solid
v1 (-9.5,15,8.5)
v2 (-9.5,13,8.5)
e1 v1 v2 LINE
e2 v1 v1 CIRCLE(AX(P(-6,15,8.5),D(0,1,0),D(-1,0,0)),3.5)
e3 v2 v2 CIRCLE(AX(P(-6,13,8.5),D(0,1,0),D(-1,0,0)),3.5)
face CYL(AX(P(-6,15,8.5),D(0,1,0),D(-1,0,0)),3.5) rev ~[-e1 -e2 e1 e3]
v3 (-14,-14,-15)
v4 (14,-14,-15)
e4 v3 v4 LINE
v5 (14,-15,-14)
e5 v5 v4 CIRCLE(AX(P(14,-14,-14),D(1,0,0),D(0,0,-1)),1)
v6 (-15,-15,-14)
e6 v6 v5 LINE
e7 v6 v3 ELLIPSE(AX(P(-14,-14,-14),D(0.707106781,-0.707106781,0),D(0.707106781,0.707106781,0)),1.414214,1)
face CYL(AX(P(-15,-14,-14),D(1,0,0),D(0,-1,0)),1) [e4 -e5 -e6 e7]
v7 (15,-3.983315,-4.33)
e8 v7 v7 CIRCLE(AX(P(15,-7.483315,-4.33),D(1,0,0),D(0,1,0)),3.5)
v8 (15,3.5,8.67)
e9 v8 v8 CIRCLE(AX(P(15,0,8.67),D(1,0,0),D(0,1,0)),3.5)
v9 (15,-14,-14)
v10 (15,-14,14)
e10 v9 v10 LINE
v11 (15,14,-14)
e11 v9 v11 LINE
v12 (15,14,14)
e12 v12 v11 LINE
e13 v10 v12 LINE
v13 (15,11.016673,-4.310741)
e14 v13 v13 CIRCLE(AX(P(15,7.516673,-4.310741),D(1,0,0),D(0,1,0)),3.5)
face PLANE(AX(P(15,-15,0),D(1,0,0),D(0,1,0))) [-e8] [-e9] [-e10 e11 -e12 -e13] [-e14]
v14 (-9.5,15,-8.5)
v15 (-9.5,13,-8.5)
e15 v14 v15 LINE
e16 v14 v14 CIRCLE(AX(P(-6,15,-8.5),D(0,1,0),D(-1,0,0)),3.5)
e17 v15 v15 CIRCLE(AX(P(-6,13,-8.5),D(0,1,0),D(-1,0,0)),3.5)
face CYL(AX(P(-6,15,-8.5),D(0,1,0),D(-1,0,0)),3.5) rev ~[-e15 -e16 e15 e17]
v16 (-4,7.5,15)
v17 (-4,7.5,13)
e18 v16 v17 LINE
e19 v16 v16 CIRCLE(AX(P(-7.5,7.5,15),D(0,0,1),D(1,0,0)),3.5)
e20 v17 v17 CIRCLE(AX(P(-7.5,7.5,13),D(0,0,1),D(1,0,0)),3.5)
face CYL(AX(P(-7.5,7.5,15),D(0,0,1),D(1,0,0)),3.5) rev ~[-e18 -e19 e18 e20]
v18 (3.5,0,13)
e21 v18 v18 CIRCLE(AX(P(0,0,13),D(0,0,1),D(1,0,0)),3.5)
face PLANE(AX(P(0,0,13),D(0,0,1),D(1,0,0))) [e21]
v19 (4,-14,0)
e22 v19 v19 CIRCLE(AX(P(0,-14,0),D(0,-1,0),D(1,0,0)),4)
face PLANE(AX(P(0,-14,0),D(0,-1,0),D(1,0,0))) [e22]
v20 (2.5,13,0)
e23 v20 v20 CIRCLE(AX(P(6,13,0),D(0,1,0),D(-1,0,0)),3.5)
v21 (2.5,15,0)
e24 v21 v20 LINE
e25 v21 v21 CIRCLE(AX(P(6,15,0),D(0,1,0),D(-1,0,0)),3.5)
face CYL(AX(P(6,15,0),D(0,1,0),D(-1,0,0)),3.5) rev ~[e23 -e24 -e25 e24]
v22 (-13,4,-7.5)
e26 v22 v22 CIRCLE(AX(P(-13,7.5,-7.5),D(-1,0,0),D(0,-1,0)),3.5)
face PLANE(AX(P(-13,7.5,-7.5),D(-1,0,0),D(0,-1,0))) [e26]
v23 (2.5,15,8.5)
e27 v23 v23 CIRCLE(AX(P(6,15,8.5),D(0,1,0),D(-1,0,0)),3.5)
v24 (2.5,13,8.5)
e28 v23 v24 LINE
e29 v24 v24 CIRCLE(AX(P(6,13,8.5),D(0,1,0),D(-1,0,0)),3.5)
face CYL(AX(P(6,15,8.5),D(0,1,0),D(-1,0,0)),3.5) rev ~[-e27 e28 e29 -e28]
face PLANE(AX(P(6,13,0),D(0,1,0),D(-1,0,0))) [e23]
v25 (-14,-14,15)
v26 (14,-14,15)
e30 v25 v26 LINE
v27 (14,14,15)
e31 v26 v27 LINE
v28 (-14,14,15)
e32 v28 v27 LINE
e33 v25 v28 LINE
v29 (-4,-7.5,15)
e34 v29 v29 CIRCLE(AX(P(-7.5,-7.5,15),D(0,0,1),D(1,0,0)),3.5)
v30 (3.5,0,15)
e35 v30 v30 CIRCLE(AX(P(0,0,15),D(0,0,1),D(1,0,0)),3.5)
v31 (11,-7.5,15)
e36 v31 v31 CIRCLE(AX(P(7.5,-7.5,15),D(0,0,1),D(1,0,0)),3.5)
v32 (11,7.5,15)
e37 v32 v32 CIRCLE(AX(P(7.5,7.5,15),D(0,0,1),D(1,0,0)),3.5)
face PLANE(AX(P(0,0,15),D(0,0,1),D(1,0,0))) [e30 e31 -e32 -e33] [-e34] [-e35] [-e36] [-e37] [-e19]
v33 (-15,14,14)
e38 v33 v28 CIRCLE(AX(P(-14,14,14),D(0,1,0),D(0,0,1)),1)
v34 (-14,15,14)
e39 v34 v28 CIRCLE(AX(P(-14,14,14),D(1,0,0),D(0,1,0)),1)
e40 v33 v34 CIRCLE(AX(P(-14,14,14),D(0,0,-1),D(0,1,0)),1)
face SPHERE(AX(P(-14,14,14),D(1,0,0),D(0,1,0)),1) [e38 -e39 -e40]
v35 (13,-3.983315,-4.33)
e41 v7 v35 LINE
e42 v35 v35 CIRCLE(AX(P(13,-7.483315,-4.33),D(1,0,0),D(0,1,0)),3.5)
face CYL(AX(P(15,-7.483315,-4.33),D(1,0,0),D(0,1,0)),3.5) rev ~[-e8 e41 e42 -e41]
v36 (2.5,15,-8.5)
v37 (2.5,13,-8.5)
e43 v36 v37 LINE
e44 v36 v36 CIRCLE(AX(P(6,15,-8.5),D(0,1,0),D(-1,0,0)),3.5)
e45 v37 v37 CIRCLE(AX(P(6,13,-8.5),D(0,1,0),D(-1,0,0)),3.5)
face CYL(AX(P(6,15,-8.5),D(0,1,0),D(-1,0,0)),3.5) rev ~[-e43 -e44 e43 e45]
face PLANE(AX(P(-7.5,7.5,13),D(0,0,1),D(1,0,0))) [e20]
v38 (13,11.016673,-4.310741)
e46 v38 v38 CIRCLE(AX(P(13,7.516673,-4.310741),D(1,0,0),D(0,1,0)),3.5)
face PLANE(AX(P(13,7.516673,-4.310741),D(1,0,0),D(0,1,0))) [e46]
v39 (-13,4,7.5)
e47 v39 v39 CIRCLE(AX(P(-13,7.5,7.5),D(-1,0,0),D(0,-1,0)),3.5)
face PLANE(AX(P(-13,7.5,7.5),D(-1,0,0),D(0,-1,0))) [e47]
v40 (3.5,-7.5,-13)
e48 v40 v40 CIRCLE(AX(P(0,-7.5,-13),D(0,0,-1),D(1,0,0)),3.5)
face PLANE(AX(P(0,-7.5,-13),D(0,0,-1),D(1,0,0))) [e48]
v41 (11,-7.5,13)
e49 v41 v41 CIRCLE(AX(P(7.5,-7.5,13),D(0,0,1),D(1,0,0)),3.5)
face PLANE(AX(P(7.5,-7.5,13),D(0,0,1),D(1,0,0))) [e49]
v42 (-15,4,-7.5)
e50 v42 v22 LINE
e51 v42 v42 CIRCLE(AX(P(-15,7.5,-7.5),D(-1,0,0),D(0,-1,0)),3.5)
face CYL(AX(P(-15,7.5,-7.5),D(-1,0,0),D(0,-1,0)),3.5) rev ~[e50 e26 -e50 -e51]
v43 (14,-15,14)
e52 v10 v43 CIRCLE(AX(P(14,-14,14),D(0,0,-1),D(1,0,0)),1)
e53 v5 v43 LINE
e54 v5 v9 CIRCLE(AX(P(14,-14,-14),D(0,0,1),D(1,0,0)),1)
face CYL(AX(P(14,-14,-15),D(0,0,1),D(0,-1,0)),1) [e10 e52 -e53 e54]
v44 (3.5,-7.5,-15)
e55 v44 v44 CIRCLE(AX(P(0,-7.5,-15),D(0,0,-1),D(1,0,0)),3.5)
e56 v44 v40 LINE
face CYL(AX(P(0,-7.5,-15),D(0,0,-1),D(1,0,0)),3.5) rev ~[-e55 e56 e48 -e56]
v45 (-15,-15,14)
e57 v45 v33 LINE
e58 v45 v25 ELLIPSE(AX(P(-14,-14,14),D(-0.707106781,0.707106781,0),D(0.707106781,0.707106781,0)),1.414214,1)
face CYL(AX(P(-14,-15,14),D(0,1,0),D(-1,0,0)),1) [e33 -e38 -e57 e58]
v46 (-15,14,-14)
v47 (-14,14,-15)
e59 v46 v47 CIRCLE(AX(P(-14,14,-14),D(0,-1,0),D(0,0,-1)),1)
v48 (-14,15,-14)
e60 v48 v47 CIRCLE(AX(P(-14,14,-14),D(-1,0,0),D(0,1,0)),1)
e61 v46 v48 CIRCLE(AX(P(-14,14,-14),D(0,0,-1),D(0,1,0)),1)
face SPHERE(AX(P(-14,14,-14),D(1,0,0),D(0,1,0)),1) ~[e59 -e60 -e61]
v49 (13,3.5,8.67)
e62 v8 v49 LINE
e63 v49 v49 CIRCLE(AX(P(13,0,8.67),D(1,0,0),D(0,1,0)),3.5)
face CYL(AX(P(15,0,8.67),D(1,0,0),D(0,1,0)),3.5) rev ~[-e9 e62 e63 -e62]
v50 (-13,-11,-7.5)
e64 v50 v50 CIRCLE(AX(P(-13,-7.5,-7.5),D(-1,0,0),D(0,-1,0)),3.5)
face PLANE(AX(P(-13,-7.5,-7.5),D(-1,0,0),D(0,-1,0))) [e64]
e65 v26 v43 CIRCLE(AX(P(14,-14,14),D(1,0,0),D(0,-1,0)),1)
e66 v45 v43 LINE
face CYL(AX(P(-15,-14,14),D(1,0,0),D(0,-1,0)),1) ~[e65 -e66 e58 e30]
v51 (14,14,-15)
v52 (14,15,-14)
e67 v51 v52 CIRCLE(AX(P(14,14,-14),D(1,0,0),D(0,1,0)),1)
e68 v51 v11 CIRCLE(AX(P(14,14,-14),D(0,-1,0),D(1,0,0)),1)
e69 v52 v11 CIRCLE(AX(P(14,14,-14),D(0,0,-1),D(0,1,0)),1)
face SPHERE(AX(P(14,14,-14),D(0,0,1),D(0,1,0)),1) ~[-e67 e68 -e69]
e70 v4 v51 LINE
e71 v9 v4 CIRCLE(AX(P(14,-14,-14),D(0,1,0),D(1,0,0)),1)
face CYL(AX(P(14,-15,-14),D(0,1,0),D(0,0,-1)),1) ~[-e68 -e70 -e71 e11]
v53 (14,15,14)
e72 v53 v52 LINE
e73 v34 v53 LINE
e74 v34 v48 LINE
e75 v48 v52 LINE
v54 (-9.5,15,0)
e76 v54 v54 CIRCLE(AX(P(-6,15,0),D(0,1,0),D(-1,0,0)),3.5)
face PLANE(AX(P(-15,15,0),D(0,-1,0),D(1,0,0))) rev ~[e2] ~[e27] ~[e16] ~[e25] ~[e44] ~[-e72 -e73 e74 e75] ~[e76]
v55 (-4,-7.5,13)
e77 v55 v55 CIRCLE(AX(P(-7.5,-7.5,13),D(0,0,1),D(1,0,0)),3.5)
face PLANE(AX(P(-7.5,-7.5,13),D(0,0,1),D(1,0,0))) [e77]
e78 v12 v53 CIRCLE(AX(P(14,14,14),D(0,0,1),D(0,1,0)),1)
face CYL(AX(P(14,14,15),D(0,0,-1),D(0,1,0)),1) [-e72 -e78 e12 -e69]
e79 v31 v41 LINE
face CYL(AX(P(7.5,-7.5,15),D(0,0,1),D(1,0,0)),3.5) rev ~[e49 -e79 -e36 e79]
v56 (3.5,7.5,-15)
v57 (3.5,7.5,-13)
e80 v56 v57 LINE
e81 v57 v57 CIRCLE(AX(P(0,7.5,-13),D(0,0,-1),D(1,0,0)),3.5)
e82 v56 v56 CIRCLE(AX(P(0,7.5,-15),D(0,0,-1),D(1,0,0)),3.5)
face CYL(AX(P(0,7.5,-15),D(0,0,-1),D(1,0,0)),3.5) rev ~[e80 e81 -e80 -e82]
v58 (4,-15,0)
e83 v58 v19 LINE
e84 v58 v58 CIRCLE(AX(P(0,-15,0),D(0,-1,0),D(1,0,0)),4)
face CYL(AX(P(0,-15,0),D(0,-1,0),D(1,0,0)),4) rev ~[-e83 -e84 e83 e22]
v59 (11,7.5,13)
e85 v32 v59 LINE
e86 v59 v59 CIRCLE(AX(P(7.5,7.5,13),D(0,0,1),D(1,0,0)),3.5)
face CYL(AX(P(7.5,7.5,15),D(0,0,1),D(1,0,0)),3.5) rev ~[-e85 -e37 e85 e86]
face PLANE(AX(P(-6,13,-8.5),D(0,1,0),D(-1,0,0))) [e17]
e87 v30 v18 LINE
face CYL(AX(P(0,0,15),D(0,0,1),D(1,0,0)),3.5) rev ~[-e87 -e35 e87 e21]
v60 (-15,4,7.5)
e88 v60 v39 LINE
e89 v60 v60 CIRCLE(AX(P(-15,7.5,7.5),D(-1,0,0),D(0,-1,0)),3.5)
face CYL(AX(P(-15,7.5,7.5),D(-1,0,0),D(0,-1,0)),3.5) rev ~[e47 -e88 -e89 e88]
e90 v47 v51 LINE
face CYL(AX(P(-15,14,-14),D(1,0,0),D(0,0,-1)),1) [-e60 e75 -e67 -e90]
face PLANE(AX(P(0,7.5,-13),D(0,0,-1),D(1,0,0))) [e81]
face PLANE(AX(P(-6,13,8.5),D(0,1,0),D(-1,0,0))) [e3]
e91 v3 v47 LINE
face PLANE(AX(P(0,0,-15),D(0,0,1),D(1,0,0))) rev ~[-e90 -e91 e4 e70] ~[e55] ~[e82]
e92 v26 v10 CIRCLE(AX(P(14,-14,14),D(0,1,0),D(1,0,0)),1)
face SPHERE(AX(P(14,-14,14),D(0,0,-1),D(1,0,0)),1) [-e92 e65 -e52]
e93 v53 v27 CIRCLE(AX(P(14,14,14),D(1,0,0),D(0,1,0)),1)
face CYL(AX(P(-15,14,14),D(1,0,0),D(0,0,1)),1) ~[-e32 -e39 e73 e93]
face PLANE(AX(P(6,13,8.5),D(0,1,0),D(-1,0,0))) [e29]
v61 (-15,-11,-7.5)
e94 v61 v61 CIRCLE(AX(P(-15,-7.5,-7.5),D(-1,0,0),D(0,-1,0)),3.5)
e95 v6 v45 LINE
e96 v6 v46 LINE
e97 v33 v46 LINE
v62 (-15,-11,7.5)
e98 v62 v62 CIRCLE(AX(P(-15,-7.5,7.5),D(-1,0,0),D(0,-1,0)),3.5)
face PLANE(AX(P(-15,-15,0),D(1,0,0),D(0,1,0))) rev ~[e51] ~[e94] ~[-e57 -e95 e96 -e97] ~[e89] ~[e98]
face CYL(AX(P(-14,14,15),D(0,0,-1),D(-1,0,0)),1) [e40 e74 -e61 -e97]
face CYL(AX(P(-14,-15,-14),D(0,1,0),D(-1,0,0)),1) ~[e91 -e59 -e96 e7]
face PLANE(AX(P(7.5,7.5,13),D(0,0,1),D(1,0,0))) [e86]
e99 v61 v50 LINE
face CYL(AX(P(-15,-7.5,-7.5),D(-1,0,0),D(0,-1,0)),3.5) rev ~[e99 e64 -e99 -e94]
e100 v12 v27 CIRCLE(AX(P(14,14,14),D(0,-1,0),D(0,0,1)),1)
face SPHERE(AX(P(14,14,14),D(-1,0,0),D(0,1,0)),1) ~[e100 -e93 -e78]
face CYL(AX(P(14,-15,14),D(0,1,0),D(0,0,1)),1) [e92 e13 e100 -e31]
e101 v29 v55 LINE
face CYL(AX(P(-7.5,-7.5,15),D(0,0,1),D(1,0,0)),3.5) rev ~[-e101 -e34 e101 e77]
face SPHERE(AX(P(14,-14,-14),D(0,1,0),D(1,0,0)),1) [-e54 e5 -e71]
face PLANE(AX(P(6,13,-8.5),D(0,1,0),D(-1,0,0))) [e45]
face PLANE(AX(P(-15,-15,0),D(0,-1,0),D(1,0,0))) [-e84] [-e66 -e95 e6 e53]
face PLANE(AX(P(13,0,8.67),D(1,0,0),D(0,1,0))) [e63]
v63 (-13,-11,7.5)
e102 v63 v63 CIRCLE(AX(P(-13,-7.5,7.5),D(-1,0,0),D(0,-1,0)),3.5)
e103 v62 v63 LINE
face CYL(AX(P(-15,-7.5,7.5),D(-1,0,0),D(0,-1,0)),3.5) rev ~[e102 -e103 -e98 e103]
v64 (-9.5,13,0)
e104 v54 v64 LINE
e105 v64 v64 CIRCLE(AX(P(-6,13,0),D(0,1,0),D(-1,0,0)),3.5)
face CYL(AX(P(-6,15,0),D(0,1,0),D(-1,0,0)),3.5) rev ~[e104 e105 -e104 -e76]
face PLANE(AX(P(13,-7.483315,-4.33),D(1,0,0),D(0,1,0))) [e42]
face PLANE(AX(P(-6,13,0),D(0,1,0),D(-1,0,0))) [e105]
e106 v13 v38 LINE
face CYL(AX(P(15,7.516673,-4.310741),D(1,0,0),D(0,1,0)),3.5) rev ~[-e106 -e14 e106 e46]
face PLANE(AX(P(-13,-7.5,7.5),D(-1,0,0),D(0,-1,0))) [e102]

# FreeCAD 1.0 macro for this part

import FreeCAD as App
import Part
import Sketcher
from FreeCAD import Vector
Q = App.Units.Quantity


def edges_at(feature, points):
    """Names of the edges that pass closest to the given points."""
    edges = feature.Shape.Edges
    near = lambda p: min(range(len(edges)), key=lambda i: edges[i].distToShape(Part.Vertex(*p))[0])
    return sorted({f"Edge{near(p) + 1}" for p in points})


def add_polygon(sketch, points):
    """Adds a closed chain of lines whose ends are joined by coincident constraints."""
    first, n = sketch.GeometryCount, len(points)
    for a, b in zip(points, points[1:] + points[:1]):
        sketch.addGeometry(Part.LineSegment(App.Vector(*a, 0), App.Vector(*b, 0)), False)
    for i in range(n):
        sketch.addConstraint(Sketcher.Constraint("Coincident", first + i, 2, first + (i + 1) % n, 1))

doc = App.newDocument("Part")
body = doc.addObject("PartDesign::Body", "Body")

# Sketch on XY plane
sketch1 = doc.addObject("Sketcher::SketchObject", "Sketch")
body.addObject(sketch1)
sketch1.AttachmentSupport = (doc.XY_Plane, [""])
sketch1.MapMode = "FlatFace"
add_polygon(sketch1, [(-15, 15), (-15, -15), (15, -15), (15, 15)])  # lines 0-3
sketch1.addConstraint([
    Sketcher.Constraint("Vertical", 0),
    Sketcher.Constraint("Horizontal", 1),
    Sketcher.Constraint("Vertical", 2),
    Sketcher.Constraint("Horizontal", 3),
    Sketcher.Constraint("Symmetric", 0, 2, 2, 2, -1, 1),
    Sketcher.Constraint("Equal", 3, 0),
    Sketcher.Constraint("DistanceX", 1, 1, 1, 2, Q("30 mm")),
])
pad1 = doc.addObject("PartDesign::Pad", "Pad")
body.addObject(pad1)
pad1.Profile = sketch1
pad1.Type = "TwoLengths"
pad1.Length = 15
pad1.Length2 = 15

# Sketch on XZ plane
sketch2 = doc.addObject("Sketcher::SketchObject", "Sketch001")
body.addObject(sketch2)
sketch2.AttachmentSupport = (doc.XZ_Plane, [""])
sketch2.MapMode = "FlatFace"
sketch2.AttachmentOffset = App.Placement(Vector(0, 0, 15), App.Rotation())
sketch2.addGeometry(Part.Circle(Vector(0, 0, 0), Vector(0, 0, 1), 4), False)
sketch2.addConstraint([
    Sketcher.Constraint("Coincident", 0, 3, -1, 1),
    Sketcher.Constraint("Diameter", 0, Q("8 mm")),
])
pocket1 = doc.addObject("PartDesign::Pocket", "Pocket")
body.addObject(pocket1)
pocket1.Profile = sketch2
pocket1.Length = 1

# Sketch on XZ plane
sketch3 = doc.addObject("Sketcher::SketchObject", "Sketch002")
body.addObject(sketch3)
sketch3.AttachmentSupport = (doc.XZ_Plane, [""])
sketch3.MapMode = "FlatFace"
sketch3.AttachmentOffset = App.Placement(Vector(0, 0, -15), App.Rotation())
sketch3.addGeometry([
    Part.Circle(Vector(6, 8.5, 0), Vector(0, 0, 1), 3.5),  # 0
    Part.Circle(Vector(-6, 8.5, 0), Vector(0, 0, 1), 3.5),  # 1
    Part.Circle(Vector(-6, 0, 0), Vector(0, 0, 1), 3.5),  # 2
    Part.Circle(Vector(6, 0, 0), Vector(0, 0, 1), 3.5),  # 3
    Part.Circle(Vector(-6, -8.5, 0), Vector(0, 0, 1), 3.5),  # 4
    Part.Circle(Vector(6, -8.5, 0), Vector(0, 0, 1), 3.5),  # 5
], False)
sketch3.addConstraint([
    Sketcher.Constraint("Equal", 0, 1),
    Sketcher.Constraint("Equal", 1, 2),
    Sketcher.Constraint("Equal", 2, 3),
    Sketcher.Constraint("Equal", 3, 4),
    Sketcher.Constraint("Equal", 4, 5),
    Sketcher.Constraint("Symmetric", 2, 3, 3, 3, -1, 1),
    Sketcher.Constraint("Symmetric", 0, 3, 4, 3, -1, 1),
    Sketcher.Constraint("Symmetric", 1, 3, 5, 3, -1, 1),
    Sketcher.Constraint("Symmetric", 0, 3, 1, 3, -2),
    Sketcher.Constraint("PointOnObject", 2, 3, -1),
    Sketcher.Constraint("Vertical", 1, 3, 2, 3),
    Sketcher.Constraint("Diameter", 0, Q("7 mm")),
    Sketcher.Constraint("DistanceX", -1, 1, 0, 3, Q("6 mm")),
    Sketcher.Constraint("DistanceY", 4, 3, 1, 3, Q("17 mm")),
])
pocket2 = doc.addObject("PartDesign::Pocket", "Pocket001")
body.addObject(pocket2)
pocket2.Profile = sketch3
pocket2.Length = 2
pocket2.Reversed = True

# Sketch on XY plane
sketch4 = doc.addObject("Sketcher::SketchObject", "Sketch003")
body.addObject(sketch4)
sketch4.AttachmentSupport = (doc.XY_Plane, [""])
sketch4.MapMode = "FlatFace"
sketch4.AttachmentOffset = App.Placement(Vector(0, 0, -15), App.Rotation())
sketch4.addGeometry([
    Part.Circle(Vector(0, 7.5, 0), Vector(0, 0, 1), 3.5),
    Part.Circle(Vector(0, -7.5, 0), Vector(0, 0, 1), 3.5),
], False)
sketch4.addConstraint([
    Sketcher.Constraint("Equal", 0, 1),
    Sketcher.Constraint("Symmetric", 0, 3, 1, 3, -1, 1),
    Sketcher.Constraint("PointOnObject", 0, 3, -2),
    Sketcher.Constraint("Diameter", 0, Q("7 mm")),
    Sketcher.Constraint("DistanceY", 1, 3, 0, 3, Q("15 mm")),
])
pocket3 = doc.addObject("PartDesign::Pocket", "Pocket002")
body.addObject(pocket3)
pocket3.Profile = sketch4
pocket3.Length = 2
pocket3.Reversed = True

# Sketch on XY plane
sketch5 = doc.addObject("Sketcher::SketchObject", "Sketch004")
body.addObject(sketch5)
sketch5.AttachmentSupport = (doc.XY_Plane, [""])
sketch5.MapMode = "FlatFace"
sketch5.AttachmentOffset = App.Placement(Vector(0, 0, 15), App.Rotation())
sketch5.addGeometry([
    Part.Circle(Vector(-7.5, -7.5, 0), Vector(0, 0, 1), 3.5),  # 0
    Part.Circle(Vector(-7.5, 7.5, 0), Vector(0, 0, 1), 3.5),  # 1
    Part.Circle(Vector(0, 0, 0), Vector(0, 0, 1), 3.5),  # 2
    Part.Circle(Vector(7.5, 7.5, 0), Vector(0, 0, 1), 3.5),  # 3
    Part.Circle(Vector(7.5, -7.5, 0), Vector(0, 0, 1), 3.5),  # 4
], False)
sketch5.addConstraint([
    Sketcher.Constraint("Coincident", 2, 3, -1, 1),
    Sketcher.Constraint("Equal", 0, 1),
    Sketcher.Constraint("Equal", 1, 2),
    Sketcher.Constraint("Equal", 2, 3),
    Sketcher.Constraint("Equal", 3, 4),
    Sketcher.Constraint("Symmetric", 0, 3, 3, 3, -1, 1),
    Sketcher.Constraint("Symmetric", 1, 3, 4, 3, -1, 1),
    Sketcher.Constraint("Symmetric", 1, 3, 3, 3, -2),
    Sketcher.Constraint("Diameter", 0, Q("7 mm")),
    Sketcher.Constraint("DistanceY", 0, 3, 1, 3, Q("15 mm")),
    Sketcher.Constraint("DistanceX", 1, 3, 3, 3, Q("15 mm")),
])
pocket4 = doc.addObject("PartDesign::Pocket", "Pocket003")
body.addObject(pocket4)
pocket4.Profile = sketch5
pocket4.Length = 2

# Sketch on YZ plane
sketch6 = doc.addObject("Sketcher::SketchObject", "Sketch005")
body.addObject(sketch6)
sketch6.AttachmentSupport = (doc.YZ_Plane, [""])
sketch6.MapMode = "FlatFace"
sketch6.AttachmentOffset = App.Placement(Vector(0, 0, -15), App.Rotation())
sketch6.addGeometry([
    Part.Circle(Vector(-7.5, -7.5, 0), Vector(0, 0, 1), 3.5),
    Part.Circle(Vector(7.5, -7.5, 0), Vector(0, 0, 1), 3.5),
    Part.Circle(Vector(-7.5, 7.5, 0), Vector(0, 0, 1), 3.5),
    Part.Circle(Vector(7.5, 7.5, 0), Vector(0, 0, 1), 3.5),
], False)
sketch6.addConstraint([
    Sketcher.Constraint("Equal", 0, 1),
    Sketcher.Constraint("Equal", 1, 2),
    Sketcher.Constraint("Equal", 2, 3),
    Sketcher.Constraint("Symmetric", 1, 3, 2, 3, -1, 1),
    Sketcher.Constraint("Symmetric", 0, 3, 3, 3, -1, 1),
    Sketcher.Constraint("Symmetric", 0, 3, 1, 3, -2),
    Sketcher.Constraint("Diameter", 0, Q("7 mm")),
    Sketcher.Constraint("DistanceX", 0, 3, 1, 3, Q("15 mm")),
    Sketcher.Constraint("DistanceY", 0, 3, 2, 3, Q("15 mm")),
])
pocket5 = doc.addObject("PartDesign::Pocket", "Pocket004")
body.addObject(pocket5)
pocket5.Profile = sketch6
pocket5.Length = 2
pocket5.Reversed = True

# Sketch on YZ plane
sketch7 = doc.addObject("Sketcher::SketchObject", "Sketch006")
body.addObject(sketch7)
sketch7.AttachmentSupport = (doc.YZ_Plane, [""])
sketch7.MapMode = "FlatFace"
sketch7.AttachmentOffset = App.Placement(Vector(0, 0, 15), App.Rotation())
sketch7.addGeometry([
    Part.Circle(Vector(0, 8.7, 0), Vector(0, 0, 1), 3.5),
    Part.Circle(Vector(-7.5, -4.3, 0), Vector(0, 0, 1), 3.5),
    Part.Circle(Vector(7.5, -4.3, 0), Vector(0, 0, 1), 3.5),
], False)
sketch7.addConstraint([
    Sketcher.Constraint("Equal", 0, 1),
    Sketcher.Constraint("Equal", 1, 2),
    Sketcher.Constraint("PointOnObject", 0, 3, -2),
    Sketcher.Constraint("Diameter", 0, Q("7 mm")),
    Sketcher.Constraint("DistanceY", 1, 3, 0, 3, Q("13 mm")),
    Sketcher.Constraint("DistanceY", -1, 1, 0, 3, Q("8.67 mm")),
    Sketcher.Constraint("DistanceY", 2, 3, -1, 1, Q("4.310741 mm")),
    Sketcher.Constraint("DistanceX", 1, 3, -1, 1, Q("7.483315 mm")),
    Sketcher.Constraint("DistanceX", -1, 1, 2, 3, Q("7.516673 mm")),
])
pocket6 = doc.addObject("PartDesign::Pocket", "Pocket005")
body.addObject(pocket6)
pocket6.Profile = sketch7
pocket6.Length = 2
doc.recompute()

fillet = doc.addObject("PartDesign::Fillet", "Fillet")
body.addObject(fillet)
fillet.Base = (pocket6, edges_at(pocket6, [
    (0, 15, 15),
    (15, 15, 0),
    (0, 15, -15),
    (-15, 15, 0),
    (-15, 0, -15),
    (15, 0, -15),
    (15, -15, 0),
    (15, 0, 15),
    (-15, 0, 15),
    (0, -15, 15),
    (0, -15, -15),
]))
fillet.Radius = 1

doc.recompute()
